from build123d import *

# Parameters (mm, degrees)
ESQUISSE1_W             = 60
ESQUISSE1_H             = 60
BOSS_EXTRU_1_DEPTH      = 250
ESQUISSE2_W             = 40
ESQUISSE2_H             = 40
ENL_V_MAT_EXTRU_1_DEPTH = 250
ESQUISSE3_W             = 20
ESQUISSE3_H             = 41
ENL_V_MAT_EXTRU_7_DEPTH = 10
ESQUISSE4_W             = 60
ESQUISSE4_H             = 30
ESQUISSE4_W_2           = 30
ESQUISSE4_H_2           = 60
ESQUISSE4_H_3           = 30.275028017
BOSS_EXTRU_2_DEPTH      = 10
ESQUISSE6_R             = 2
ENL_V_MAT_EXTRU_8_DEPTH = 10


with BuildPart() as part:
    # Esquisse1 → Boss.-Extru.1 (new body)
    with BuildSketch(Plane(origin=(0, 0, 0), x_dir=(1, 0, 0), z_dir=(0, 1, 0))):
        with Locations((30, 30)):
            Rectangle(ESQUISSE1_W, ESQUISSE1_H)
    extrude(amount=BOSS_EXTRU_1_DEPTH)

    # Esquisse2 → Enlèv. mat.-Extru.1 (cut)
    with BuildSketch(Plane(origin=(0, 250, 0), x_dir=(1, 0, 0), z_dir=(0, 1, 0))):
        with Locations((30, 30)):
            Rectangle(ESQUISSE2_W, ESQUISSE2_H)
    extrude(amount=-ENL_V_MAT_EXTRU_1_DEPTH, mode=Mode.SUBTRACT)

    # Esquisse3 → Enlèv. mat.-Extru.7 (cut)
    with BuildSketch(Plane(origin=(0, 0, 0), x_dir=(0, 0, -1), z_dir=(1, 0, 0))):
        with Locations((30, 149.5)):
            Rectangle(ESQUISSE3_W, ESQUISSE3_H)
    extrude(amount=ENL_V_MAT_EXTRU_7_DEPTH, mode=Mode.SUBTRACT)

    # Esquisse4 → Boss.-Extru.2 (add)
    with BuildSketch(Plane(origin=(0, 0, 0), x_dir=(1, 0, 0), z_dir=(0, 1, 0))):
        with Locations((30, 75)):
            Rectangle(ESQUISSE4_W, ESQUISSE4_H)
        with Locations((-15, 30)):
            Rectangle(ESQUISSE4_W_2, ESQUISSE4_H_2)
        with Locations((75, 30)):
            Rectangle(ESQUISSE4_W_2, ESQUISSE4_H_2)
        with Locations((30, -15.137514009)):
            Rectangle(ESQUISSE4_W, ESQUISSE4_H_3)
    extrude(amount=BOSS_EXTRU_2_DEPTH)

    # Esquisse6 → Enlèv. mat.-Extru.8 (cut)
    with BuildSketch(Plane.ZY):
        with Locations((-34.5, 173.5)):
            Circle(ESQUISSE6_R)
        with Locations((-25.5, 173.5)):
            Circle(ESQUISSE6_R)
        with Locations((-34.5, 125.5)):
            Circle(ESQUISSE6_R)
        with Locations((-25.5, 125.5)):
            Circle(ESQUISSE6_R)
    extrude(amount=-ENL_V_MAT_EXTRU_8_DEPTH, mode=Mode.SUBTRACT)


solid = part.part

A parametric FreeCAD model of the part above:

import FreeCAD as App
import Part
import Sketcher

doc = App.newDocument("Part")
body = doc.addObject("PartDesign::Body", "Body")

# Sketch on XZ plane
sketch1 = doc.addObject("Sketcher::SketchObject", "Sketch")
body.addObject(sketch1)
sketch1.AttachmentSupport = (doc.XZ_Plane, [""])
sketch1.MapMode = "FlatFace"
sketch1.addGeometry([
    Part.LineSegment(App.Vector(0, -60, 0), App.Vector(0, 0, 0)),
    Part.LineSegment(App.Vector(0, 0, 0), App.Vector(60, 0, 0)),
    Part.LineSegment(App.Vector(60, 0, 0), App.Vector(60, -60, 0)),
    Part.LineSegment(App.Vector(60, -60, 0), App.Vector(0, -60, 0)),
], False)
sketch1.addConstraint([
    Sketcher.Constraint("Coincident", 0, 2, 1, 1),
    Sketcher.Constraint("Coincident", 1, 2, 2, 1),
    Sketcher.Constraint("Coincident", 2, 2, 3, 1),
    Sketcher.Constraint("Coincident", 3, 2, 0, 1),
    Sketcher.Constraint("Vertical", 0),
    Sketcher.Constraint("Horizontal", 1),
    Sketcher.Constraint("Vertical", 2),
    Sketcher.Constraint("Horizontal", 3),
    Sketcher.Constraint("Coincident", 0, 2, -1, 1),
    Sketcher.Constraint("Equal", 3, 0),
    Sketcher.Constraint("DistanceX", 1, 1, 1, 2, 60.0),
])
pad1 = doc.addObject("PartDesign::Pad", "Pad")
body.addObject(pad1)
pad1.Profile = sketch1
pad1.Length = 250
pad1.Reversed = True

# Sketch on XZ plane
sketch2 = doc.addObject("Sketcher::SketchObject", "Sketch001")
body.addObject(sketch2)
sketch2.AttachmentSupport = (doc.XZ_Plane, [""])
sketch2.MapMode = "FlatFace"
sketch2.AttachmentOffset = App.Placement(App.Vector(0, 0, -250), App.Rotation())
sketch2.addGeometry([
    Part.LineSegment(App.Vector(10, -50, 0), App.Vector(10, -10, 0)),
    Part.LineSegment(App.Vector(10, -10, 0), App.Vector(50, -10, 0)),
    Part.LineSegment(App.Vector(50, -10, 0), App.Vector(50, -50, 0)),
    Part.LineSegment(App.Vector(50, -50, 0), App.Vector(10, -50, 0)),
], False)
sketch2.addConstraint([
    Sketcher.Constraint("Coincident", 0, 2, 1, 1),
    Sketcher.Constraint("Coincident", 1, 2, 2, 1),
    Sketcher.Constraint("Coincident", 2, 2, 3, 1),
    Sketcher.Constraint("Coincident", 3, 2, 0, 1),
    Sketcher.Constraint("Vertical", 0),
    Sketcher.Constraint("Horizontal", 1),
    Sketcher.Constraint("Vertical", 2),
    Sketcher.Constraint("Horizontal", 3),
    Sketcher.Constraint("Equal", 3, 0),
    Sketcher.Constraint("DistanceX", 1, 1, 1, 2, 40.0),
    Sketcher.Constraint("DistanceX", -1, 1, 0, 2, 10.0),
    Sketcher.Constraint("DistanceY", 0, 2, -1, 1, 10.0),
])
pocket1 = doc.addObject("PartDesign::Pocket", "Pocket")
body.addObject(pocket1)
pocket1.Profile = sketch2
pocket1.Length = 250
pocket1.Reversed = True

# Sketch on YZ plane
sketch3 = doc.addObject("Sketcher::SketchObject", "Sketch002")
body.addObject(sketch3)
sketch3.AttachmentSupport = (doc.YZ_Plane, [""])
sketch3.MapMode = "FlatFace"
sketch3.addGeometry([
    Part.LineSegment(App.Vector(170, -20, 0), App.Vector(129, -20, 0)),
    Part.LineSegment(App.Vector(129, -20, 0), App.Vector(129, -40, 0)),
    Part.LineSegment(App.Vector(129, -40, 0), App.Vector(170, -40, 0)),
    Part.LineSegment(App.Vector(170, -40, 0), App.Vector(170, -20, 0)),
], False)
sketch3.addConstraint([
    Sketcher.Constraint("Coincident", 0, 2, 1, 1),
    Sketcher.Constraint("Coincident", 1, 2, 2, 1),
    Sketcher.Constraint("Coincident", 2, 2, 3, 1),
    Sketcher.Constraint("Coincident", 3, 2, 0, 1),
    Sketcher.Constraint("Horizontal", 0),
    Sketcher.Constraint("Vertical", 1),
    Sketcher.Constraint("Horizontal", 2),
    Sketcher.Constraint("Vertical", 3),
    Sketcher.Constraint("DistanceX", 0, 2, 0, 1, 41.0),
    Sketcher.Constraint("DistanceY", 1, 2, 1, 1, 20.0),
    Sketcher.Constraint("DistanceX", -1, 1, 0, 2, 129.0),
    Sketcher.Constraint("DistanceY", 0, 2, -1, 1, 20.0),
])
pocket2 = doc.addObject("PartDesign::Pocket", "Pocket001")
body.addObject(pocket2)
pocket2.Profile = sketch3
pocket2.Length = 10
pocket2.Reversed = True

# Sketch on XZ plane
sketch4 = doc.addObject("Sketcher::SketchObject", "Sketch003")
body.addObject(sketch4)
sketch4.AttachmentSupport = (doc.XZ_Plane, [""])
sketch4.MapMode = "FlatFace"
sketch4.addGeometry([
    Part.LineSegment(App.Vector(0, -90, 0), App.Vector(0, -60, 0)),  # 0
    Part.LineSegment(App.Vector(0, -60, 0), App.Vector(60, -60, 0)),  # 1
    Part.LineSegment(App.Vector(60, -60, 0), App.Vector(60, -90, 0)),  # 2
    Part.LineSegment(App.Vector(60, -90, 0), App.Vector(0, -90, 0)),  # 3
    Part.LineSegment(App.Vector(-30, -60, 0), App.Vector(-30, 0, 0)),  # 4
    Part.LineSegment(App.Vector(-30, 0, 0), App.Vector(0, 0, 0)),  # 5
    Part.LineSegment(App.Vector(0, 0, 0), App.Vector(0, -60, 0)),  # 6
    Part.LineSegment(App.Vector(0, -60, 0), App.Vector(-30, -60, 0)),  # 7
    Part.LineSegment(App.Vector(60, -60, 0), App.Vector(60, 0, 0)),  # 8
    Part.LineSegment(App.Vector(60, 0, 0), App.Vector(90, 0, 0)),  # 9
    Part.LineSegment(App.Vector(90, 0, 0), App.Vector(90, -60, 0)),  # 10
    Part.LineSegment(App.Vector(90, -60, 0), App.Vector(60, -60, 0)),  # 11
    Part.LineSegment(App.Vector(0, 0, 0), App.Vector(0, 30.275028, 0)),  # 12
    Part.LineSegment(App.Vector(0, 30.275028, 0), App.Vector(60, 30.275028, 0)),  # 13
    Part.LineSegment(App.Vector(60, 30.275028, 0), App.Vector(60, 0, 0)),  # 14
    Part.LineSegment(App.Vector(60, 0, 0), App.Vector(0, 0, 0)),  # 15
], False)
sketch4.addConstraint([
    Sketcher.Constraint("Coincident", 0, 2, 1, 1),
    Sketcher.Constraint("Coincident", 1, 2, 2, 1),
    Sketcher.Constraint("Coincident", 2, 2, 3, 1),
    Sketcher.Constraint("Coincident", 3, 2, 0, 1),
    Sketcher.Constraint("Coincident", 4, 2, 5, 1),
    Sketcher.Constraint("Coincident", 5, 2, 6, 1),
    Sketcher.Constraint("Coincident", 6, 2, 7, 1),
    Sketcher.Constraint("Coincident", 7, 2, 4, 1),
    Sketcher.Constraint("Coincident", 8, 2, 9, 1),
    Sketcher.Constraint("Coincident", 9, 2, 10, 1),
    Sketcher.Constraint("Coincident", 10, 2, 11, 1),
    Sketcher.Constraint("Coincident", 11, 2, 8, 1),
    Sketcher.Constraint("Coincident", 12, 2, 13, 1),
    Sketcher.Constraint("Coincident", 13, 2, 14, 1),
    Sketcher.Constraint("Coincident", 14, 2, 15, 1),
    Sketcher.Constraint("Coincident", 15, 2, 12, 1),
    Sketcher.Constraint("Vertical", 0),
    Sketcher.Constraint("Horizontal", 1),
    Sketcher.Constraint("Vertical", 2),
    Sketcher.Constraint("Horizontal", 3),
    Sketcher.Constraint("Vertical", 4),
    Sketcher.Constraint("Horizontal", 5),
    Sketcher.Constraint("Vertical", 6),
    Sketcher.Constraint("Horizontal", 7),
    Sketcher.Constraint("Vertical", 8),
    Sketcher.Constraint("Horizontal", 9),
    Sketcher.Constraint("Vertical", 10),
    Sketcher.Constraint("Horizontal", 11),
    Sketcher.Constraint("Vertical", 12),
    Sketcher.Constraint("Horizontal", 13),
    Sketcher.Constraint("Vertical", 14),
    Sketcher.Constraint("Horizontal", 15),
    Sketcher.Constraint("Coincident", 5, 2, -1, 1),
    Sketcher.Constraint("Coincident", 15, 2, -1, 1),
    Sketcher.Constraint("Coincident", 6, 2, 0, 2),
    Sketcher.Constraint("Coincident", 11, 2, 1, 2),
    Sketcher.Constraint("Coincident", 14, 2, 8, 2),
    Sketcher.Constraint("Equal", 7, 9),
    Sketcher.Constraint("Equal", 11, 0),
    Sketcher.Constraint("Equal", 15, 4),
    Sketcher.Constraint("DistanceX", 1, 1, 1, 2, 60.0),
    Sketcher.Constraint("DistanceX", 5, 1, 5, 2, 30.0),
    Sketcher.Constraint("DistanceY", 12, 1, 12, 2, 30.275028),
])
pad2 = doc.addObject("PartDesign::Pad", "Pad001")
body.addObject(pad2)
pad2.Profile = sketch4
pad2.Length = 10
pad2.Reversed = True

# Sketch on YZ plane
sketch5 = doc.addObject("Sketcher::SketchObject", "Sketch004")
body.addObject(sketch5)
sketch5.AttachmentSupport = (doc.YZ_Plane, [""])
sketch5.MapMode = "FlatFace"
sketch5.addGeometry([
    Part.Circle(App.Vector(173.5, -34.5, 0), App.Vector(0, 0, 1), 2),
    Part.Circle(App.Vector(173.5, -25.5, 0), App.Vector(0, 0, 1), 2),
    Part.Circle(App.Vector(125.5, -34.5, 0), App.Vector(0, 0, 1), 2),
    Part.Circle(App.Vector(125.5, -25.5, 0), App.Vector(0, 0, 1), 2),
], False)
sketch5.addConstraint([
    Sketcher.Constraint("Equal", 0, 1),
    Sketcher.Constraint("Equal", 1, 2),
    Sketcher.Constraint("Equal", 2, 3),
    Sketcher.Constraint("Horizontal", 0, 3, 2, 3),
    Sketcher.Constraint("Horizontal", 1, 3, 3, 3),
    Sketcher.Constraint("Vertical", 0, 3, 1, 3),
    Sketcher.Constraint("Vertical", 2, 3, 3, 3),
    Sketcher.Constraint("Diameter", 0, 4.0),
    Sketcher.Constraint("DistanceY", 0, 3, 1, 3, 9.0),
    Sketcher.Constraint("DistanceX", 2, 3, 0, 3, 48.0),
    Sketcher.Constraint("DistanceX", -1, 1, 0, 3, 173.5),
    Sketcher.Constraint("DistanceY", 0, 3, -1, 1, 34.5),
])
pocket3 = doc.addObject("PartDesign::Pocket", "Pocket002")
body.addObject(pocket3)
pocket3.Profile = sketch5
pocket3.Length = 10
pocket3.Reversed = True

doc.recompute()
